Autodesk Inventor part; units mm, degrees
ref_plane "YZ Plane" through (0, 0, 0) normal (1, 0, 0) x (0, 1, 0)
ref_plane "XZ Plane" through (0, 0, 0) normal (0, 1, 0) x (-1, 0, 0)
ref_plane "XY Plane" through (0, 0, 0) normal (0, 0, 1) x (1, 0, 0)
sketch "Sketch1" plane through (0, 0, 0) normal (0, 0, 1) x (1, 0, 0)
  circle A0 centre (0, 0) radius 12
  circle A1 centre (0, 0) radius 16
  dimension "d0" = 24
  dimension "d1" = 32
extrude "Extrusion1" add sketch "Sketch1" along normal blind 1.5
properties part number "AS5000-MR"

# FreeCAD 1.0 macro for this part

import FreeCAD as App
import Part
import Sketcher
Q = App.Units.Quantity

doc = App.newDocument("Part")
body = doc.addObject("PartDesign::Body", "Body")

# Sketch on XY plane
sketch1 = body.newObject("Sketcher::SketchObject", "Sketch")
sketch1.AttachmentSupport = (doc.getObject("XY_Plane"), [""])
sketch1.MapMode = "FlatFace"
sketch1.addGeometry(Part.Circle(App.Vector(0, 0, 0), App.Vector(0, 0, 1), 16), False)
sketch1.addGeometry(Part.Circle(App.Vector(0, 0, 0), App.Vector(0, 0, 1), 12), False)
sketch1.addConstraint(Sketcher.Constraint("Coincident", 0, 3, -1, 1))
sketch1.addConstraint(Sketcher.Constraint("Coincident", 1, 3, -1, 1))
sketch1.addConstraint(Sketcher.Constraint("Diameter", 0, Q("32 mm")))
sketch1.addConstraint(Sketcher.Constraint("Diameter", 1, Q("24 mm")))
pad1 = body.newObject("PartDesign::Pad", "Pad")
pad1.Profile = sketch1
pad1.Length = 1.5

doc.recompute()
